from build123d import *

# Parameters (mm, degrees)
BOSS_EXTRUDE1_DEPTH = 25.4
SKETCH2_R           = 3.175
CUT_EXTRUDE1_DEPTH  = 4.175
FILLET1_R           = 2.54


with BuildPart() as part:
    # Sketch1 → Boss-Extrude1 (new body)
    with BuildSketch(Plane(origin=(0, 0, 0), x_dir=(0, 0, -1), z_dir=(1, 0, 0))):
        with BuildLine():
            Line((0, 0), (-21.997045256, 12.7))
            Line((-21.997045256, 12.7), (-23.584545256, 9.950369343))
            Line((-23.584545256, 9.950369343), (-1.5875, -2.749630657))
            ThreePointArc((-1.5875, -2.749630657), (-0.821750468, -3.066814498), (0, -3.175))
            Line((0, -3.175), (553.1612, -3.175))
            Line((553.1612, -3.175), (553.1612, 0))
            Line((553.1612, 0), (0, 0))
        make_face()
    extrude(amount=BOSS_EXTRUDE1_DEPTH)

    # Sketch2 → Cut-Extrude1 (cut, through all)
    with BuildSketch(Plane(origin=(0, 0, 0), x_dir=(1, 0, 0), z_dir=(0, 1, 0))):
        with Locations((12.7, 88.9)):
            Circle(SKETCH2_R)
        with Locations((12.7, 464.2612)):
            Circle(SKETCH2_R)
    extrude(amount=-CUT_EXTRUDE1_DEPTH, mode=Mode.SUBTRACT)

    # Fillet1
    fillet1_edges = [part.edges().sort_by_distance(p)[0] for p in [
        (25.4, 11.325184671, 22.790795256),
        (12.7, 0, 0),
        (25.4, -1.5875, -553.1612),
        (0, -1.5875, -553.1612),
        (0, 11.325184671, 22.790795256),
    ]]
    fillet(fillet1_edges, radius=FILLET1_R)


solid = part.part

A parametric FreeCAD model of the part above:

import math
import FreeCAD as App
import Part
import Sketcher
Q = App.Units.Quantity


def edges_at(feature, points):
    """Names of the edges that pass closest to the given points."""
    edges = feature.Shape.Edges
    near = lambda p: min(range(len(edges)), key=lambda i: edges[i].distToShape(Part.Vertex(*p))[0])
    return sorted({f"Edge{near(p) + 1}" for p in points})

doc = App.newDocument("Part")
body = doc.addObject("PartDesign::Body", "Body")

# Sketch on YZ plane
sketch1 = body.newObject("Sketcher::SketchObject", "Sketch")
sketch1.AttachmentSupport = (doc.getObject("YZ_Plane"), [""])
sketch1.MapMode = "FlatFace"
sketch1.addGeometry(Part.LineSegment(App.Vector(0, 0, 0), App.Vector(12.7, 21.997045, 0)), False)
sketch1.addGeometry(Part.LineSegment(App.Vector(12.7, 21.997045, 0), App.Vector(9.950369, 23.584545, 0)), False)
sketch1.addGeometry(Part.LineSegment(App.Vector(9.950369, 23.584545, 0), App.Vector(-2.749631, 1.5875, 0)), False)
sketch1.addGeometry(Part.ArcOfCircle(Part.Circle(App.Vector(0, 0, 0), App.Vector(0, 0, 1), 3.175), math.radians(150), math.radians(180)), False)
sketch1.addGeometry(Part.LineSegment(App.Vector(-3.175, 0, 0), App.Vector(-3.175, -553.1612, 0)), False)
sketch1.addGeometry(Part.LineSegment(App.Vector(-3.175, -553.1612, 0), App.Vector(0, -553.1612, 0)), False)
sketch1.addGeometry(Part.LineSegment(App.Vector(0, -553.1612, 0), App.Vector(0, 0, 0)), False)
sketch1.addConstraint(Sketcher.Constraint("Coincident", 0, 2, 1, 1))
sketch1.addConstraint(Sketcher.Constraint("Coincident", 1, 2, 2, 1))
sketch1.addConstraint(Sketcher.Constraint("Tangent", 2, 2, 3, 1))
sketch1.addConstraint(Sketcher.Constraint("Tangent", 3, 2, 4, 1))
sketch1.addConstraint(Sketcher.Constraint("Coincident", 4, 2, 5, 1))
sketch1.addConstraint(Sketcher.Constraint("Coincident", 5, 2, 6, 1))
sketch1.addConstraint(Sketcher.Constraint("Coincident", 6, 2, 0, 1))
sketch1.addConstraint(Sketcher.Constraint("Vertical", 4))
sketch1.addConstraint(Sketcher.Constraint("Horizontal", 5))
sketch1.addConstraint(Sketcher.Constraint("Vertical", 6))
sketch1.addConstraint(Sketcher.Constraint("Coincident", 3, 3, -1, 1))
sketch1.addConstraint(Sketcher.Constraint("Coincident", 6, 2, -1, 1))
sketch1.addConstraint(Sketcher.Constraint("Perpendicular", 0, 1))
sketch1.addConstraint(Sketcher.Constraint("Perpendicular", 1, 2))
sketch1.addConstraint(Sketcher.Constraint("Distance", 0, Q("1 in")))
sketch1.addConstraint(Sketcher.Constraint("Angle", 0, Q("60 deg")))
sketch1.addConstraint(Sketcher.Constraint("Radius", 3, Q("0.125 in")))
sketch1.addConstraint(Sketcher.Constraint("DistanceY", 4, 2, 4, 1, Q("21.778 in")))
pad1 = body.newObject("PartDesign::Pad", "Pad")
pad1.Profile = sketch1
pad1.Length = Q("1 in")

# Sketch on XZ plane
sketch2 = body.newObject("Sketcher::SketchObject", "Sketch001")
sketch2.AttachmentSupport = (doc.getObject("XZ_Plane"), [""])
sketch2.MapMode = "FlatFace"
sketch2.addGeometry(Part.Circle(App.Vector(12.7, -88.9, 0), App.Vector(0, 0, 1), 3.175), False)
sketch2.addGeometry(Part.Circle(App.Vector(12.7, -464.2612, 0), App.Vector(0, 0, 1), 3.175), False)
sketch2.addConstraint(Sketcher.Constraint("Equal", 0, 1))
sketch2.addConstraint(Sketcher.Constraint("Vertical", 0, 3, 1, 3))
sketch2.addConstraint(Sketcher.Constraint("Diameter", 0, Q("0.25 in")))
sketch2.addConstraint(Sketcher.Constraint("DistanceX", -1, 1, 0, 3, Q("0.5 in")))
sketch2.addConstraint(Sketcher.Constraint("DistanceY", 0, 3, -1, 1, Q("3.5 in")))
sketch2.addConstraint(Sketcher.Constraint("DistanceY", 1, 3, -1, 1, Q("18.278 in")))
pocket1 = body.newObject("PartDesign::Pocket", "Pocket")
pocket1.Profile = sketch2
pocket1.Type = "ThroughAll"
pocket1.Reversed = True
doc.recompute()

fillet = body.newObject("PartDesign::Fillet", "Fillet")
fillet.Base = (pocket1, edges_at(pocket1, [
    (25.4, 11.325, 22.791),
    (12.7, 0, 0),
    (25.4, -1.587, -553.161),
    (0, -1.587, -553.161),
    (0, 11.325, 22.791),
]))
fillet.Radius = Q("0.1 in")

doc.recompute()
